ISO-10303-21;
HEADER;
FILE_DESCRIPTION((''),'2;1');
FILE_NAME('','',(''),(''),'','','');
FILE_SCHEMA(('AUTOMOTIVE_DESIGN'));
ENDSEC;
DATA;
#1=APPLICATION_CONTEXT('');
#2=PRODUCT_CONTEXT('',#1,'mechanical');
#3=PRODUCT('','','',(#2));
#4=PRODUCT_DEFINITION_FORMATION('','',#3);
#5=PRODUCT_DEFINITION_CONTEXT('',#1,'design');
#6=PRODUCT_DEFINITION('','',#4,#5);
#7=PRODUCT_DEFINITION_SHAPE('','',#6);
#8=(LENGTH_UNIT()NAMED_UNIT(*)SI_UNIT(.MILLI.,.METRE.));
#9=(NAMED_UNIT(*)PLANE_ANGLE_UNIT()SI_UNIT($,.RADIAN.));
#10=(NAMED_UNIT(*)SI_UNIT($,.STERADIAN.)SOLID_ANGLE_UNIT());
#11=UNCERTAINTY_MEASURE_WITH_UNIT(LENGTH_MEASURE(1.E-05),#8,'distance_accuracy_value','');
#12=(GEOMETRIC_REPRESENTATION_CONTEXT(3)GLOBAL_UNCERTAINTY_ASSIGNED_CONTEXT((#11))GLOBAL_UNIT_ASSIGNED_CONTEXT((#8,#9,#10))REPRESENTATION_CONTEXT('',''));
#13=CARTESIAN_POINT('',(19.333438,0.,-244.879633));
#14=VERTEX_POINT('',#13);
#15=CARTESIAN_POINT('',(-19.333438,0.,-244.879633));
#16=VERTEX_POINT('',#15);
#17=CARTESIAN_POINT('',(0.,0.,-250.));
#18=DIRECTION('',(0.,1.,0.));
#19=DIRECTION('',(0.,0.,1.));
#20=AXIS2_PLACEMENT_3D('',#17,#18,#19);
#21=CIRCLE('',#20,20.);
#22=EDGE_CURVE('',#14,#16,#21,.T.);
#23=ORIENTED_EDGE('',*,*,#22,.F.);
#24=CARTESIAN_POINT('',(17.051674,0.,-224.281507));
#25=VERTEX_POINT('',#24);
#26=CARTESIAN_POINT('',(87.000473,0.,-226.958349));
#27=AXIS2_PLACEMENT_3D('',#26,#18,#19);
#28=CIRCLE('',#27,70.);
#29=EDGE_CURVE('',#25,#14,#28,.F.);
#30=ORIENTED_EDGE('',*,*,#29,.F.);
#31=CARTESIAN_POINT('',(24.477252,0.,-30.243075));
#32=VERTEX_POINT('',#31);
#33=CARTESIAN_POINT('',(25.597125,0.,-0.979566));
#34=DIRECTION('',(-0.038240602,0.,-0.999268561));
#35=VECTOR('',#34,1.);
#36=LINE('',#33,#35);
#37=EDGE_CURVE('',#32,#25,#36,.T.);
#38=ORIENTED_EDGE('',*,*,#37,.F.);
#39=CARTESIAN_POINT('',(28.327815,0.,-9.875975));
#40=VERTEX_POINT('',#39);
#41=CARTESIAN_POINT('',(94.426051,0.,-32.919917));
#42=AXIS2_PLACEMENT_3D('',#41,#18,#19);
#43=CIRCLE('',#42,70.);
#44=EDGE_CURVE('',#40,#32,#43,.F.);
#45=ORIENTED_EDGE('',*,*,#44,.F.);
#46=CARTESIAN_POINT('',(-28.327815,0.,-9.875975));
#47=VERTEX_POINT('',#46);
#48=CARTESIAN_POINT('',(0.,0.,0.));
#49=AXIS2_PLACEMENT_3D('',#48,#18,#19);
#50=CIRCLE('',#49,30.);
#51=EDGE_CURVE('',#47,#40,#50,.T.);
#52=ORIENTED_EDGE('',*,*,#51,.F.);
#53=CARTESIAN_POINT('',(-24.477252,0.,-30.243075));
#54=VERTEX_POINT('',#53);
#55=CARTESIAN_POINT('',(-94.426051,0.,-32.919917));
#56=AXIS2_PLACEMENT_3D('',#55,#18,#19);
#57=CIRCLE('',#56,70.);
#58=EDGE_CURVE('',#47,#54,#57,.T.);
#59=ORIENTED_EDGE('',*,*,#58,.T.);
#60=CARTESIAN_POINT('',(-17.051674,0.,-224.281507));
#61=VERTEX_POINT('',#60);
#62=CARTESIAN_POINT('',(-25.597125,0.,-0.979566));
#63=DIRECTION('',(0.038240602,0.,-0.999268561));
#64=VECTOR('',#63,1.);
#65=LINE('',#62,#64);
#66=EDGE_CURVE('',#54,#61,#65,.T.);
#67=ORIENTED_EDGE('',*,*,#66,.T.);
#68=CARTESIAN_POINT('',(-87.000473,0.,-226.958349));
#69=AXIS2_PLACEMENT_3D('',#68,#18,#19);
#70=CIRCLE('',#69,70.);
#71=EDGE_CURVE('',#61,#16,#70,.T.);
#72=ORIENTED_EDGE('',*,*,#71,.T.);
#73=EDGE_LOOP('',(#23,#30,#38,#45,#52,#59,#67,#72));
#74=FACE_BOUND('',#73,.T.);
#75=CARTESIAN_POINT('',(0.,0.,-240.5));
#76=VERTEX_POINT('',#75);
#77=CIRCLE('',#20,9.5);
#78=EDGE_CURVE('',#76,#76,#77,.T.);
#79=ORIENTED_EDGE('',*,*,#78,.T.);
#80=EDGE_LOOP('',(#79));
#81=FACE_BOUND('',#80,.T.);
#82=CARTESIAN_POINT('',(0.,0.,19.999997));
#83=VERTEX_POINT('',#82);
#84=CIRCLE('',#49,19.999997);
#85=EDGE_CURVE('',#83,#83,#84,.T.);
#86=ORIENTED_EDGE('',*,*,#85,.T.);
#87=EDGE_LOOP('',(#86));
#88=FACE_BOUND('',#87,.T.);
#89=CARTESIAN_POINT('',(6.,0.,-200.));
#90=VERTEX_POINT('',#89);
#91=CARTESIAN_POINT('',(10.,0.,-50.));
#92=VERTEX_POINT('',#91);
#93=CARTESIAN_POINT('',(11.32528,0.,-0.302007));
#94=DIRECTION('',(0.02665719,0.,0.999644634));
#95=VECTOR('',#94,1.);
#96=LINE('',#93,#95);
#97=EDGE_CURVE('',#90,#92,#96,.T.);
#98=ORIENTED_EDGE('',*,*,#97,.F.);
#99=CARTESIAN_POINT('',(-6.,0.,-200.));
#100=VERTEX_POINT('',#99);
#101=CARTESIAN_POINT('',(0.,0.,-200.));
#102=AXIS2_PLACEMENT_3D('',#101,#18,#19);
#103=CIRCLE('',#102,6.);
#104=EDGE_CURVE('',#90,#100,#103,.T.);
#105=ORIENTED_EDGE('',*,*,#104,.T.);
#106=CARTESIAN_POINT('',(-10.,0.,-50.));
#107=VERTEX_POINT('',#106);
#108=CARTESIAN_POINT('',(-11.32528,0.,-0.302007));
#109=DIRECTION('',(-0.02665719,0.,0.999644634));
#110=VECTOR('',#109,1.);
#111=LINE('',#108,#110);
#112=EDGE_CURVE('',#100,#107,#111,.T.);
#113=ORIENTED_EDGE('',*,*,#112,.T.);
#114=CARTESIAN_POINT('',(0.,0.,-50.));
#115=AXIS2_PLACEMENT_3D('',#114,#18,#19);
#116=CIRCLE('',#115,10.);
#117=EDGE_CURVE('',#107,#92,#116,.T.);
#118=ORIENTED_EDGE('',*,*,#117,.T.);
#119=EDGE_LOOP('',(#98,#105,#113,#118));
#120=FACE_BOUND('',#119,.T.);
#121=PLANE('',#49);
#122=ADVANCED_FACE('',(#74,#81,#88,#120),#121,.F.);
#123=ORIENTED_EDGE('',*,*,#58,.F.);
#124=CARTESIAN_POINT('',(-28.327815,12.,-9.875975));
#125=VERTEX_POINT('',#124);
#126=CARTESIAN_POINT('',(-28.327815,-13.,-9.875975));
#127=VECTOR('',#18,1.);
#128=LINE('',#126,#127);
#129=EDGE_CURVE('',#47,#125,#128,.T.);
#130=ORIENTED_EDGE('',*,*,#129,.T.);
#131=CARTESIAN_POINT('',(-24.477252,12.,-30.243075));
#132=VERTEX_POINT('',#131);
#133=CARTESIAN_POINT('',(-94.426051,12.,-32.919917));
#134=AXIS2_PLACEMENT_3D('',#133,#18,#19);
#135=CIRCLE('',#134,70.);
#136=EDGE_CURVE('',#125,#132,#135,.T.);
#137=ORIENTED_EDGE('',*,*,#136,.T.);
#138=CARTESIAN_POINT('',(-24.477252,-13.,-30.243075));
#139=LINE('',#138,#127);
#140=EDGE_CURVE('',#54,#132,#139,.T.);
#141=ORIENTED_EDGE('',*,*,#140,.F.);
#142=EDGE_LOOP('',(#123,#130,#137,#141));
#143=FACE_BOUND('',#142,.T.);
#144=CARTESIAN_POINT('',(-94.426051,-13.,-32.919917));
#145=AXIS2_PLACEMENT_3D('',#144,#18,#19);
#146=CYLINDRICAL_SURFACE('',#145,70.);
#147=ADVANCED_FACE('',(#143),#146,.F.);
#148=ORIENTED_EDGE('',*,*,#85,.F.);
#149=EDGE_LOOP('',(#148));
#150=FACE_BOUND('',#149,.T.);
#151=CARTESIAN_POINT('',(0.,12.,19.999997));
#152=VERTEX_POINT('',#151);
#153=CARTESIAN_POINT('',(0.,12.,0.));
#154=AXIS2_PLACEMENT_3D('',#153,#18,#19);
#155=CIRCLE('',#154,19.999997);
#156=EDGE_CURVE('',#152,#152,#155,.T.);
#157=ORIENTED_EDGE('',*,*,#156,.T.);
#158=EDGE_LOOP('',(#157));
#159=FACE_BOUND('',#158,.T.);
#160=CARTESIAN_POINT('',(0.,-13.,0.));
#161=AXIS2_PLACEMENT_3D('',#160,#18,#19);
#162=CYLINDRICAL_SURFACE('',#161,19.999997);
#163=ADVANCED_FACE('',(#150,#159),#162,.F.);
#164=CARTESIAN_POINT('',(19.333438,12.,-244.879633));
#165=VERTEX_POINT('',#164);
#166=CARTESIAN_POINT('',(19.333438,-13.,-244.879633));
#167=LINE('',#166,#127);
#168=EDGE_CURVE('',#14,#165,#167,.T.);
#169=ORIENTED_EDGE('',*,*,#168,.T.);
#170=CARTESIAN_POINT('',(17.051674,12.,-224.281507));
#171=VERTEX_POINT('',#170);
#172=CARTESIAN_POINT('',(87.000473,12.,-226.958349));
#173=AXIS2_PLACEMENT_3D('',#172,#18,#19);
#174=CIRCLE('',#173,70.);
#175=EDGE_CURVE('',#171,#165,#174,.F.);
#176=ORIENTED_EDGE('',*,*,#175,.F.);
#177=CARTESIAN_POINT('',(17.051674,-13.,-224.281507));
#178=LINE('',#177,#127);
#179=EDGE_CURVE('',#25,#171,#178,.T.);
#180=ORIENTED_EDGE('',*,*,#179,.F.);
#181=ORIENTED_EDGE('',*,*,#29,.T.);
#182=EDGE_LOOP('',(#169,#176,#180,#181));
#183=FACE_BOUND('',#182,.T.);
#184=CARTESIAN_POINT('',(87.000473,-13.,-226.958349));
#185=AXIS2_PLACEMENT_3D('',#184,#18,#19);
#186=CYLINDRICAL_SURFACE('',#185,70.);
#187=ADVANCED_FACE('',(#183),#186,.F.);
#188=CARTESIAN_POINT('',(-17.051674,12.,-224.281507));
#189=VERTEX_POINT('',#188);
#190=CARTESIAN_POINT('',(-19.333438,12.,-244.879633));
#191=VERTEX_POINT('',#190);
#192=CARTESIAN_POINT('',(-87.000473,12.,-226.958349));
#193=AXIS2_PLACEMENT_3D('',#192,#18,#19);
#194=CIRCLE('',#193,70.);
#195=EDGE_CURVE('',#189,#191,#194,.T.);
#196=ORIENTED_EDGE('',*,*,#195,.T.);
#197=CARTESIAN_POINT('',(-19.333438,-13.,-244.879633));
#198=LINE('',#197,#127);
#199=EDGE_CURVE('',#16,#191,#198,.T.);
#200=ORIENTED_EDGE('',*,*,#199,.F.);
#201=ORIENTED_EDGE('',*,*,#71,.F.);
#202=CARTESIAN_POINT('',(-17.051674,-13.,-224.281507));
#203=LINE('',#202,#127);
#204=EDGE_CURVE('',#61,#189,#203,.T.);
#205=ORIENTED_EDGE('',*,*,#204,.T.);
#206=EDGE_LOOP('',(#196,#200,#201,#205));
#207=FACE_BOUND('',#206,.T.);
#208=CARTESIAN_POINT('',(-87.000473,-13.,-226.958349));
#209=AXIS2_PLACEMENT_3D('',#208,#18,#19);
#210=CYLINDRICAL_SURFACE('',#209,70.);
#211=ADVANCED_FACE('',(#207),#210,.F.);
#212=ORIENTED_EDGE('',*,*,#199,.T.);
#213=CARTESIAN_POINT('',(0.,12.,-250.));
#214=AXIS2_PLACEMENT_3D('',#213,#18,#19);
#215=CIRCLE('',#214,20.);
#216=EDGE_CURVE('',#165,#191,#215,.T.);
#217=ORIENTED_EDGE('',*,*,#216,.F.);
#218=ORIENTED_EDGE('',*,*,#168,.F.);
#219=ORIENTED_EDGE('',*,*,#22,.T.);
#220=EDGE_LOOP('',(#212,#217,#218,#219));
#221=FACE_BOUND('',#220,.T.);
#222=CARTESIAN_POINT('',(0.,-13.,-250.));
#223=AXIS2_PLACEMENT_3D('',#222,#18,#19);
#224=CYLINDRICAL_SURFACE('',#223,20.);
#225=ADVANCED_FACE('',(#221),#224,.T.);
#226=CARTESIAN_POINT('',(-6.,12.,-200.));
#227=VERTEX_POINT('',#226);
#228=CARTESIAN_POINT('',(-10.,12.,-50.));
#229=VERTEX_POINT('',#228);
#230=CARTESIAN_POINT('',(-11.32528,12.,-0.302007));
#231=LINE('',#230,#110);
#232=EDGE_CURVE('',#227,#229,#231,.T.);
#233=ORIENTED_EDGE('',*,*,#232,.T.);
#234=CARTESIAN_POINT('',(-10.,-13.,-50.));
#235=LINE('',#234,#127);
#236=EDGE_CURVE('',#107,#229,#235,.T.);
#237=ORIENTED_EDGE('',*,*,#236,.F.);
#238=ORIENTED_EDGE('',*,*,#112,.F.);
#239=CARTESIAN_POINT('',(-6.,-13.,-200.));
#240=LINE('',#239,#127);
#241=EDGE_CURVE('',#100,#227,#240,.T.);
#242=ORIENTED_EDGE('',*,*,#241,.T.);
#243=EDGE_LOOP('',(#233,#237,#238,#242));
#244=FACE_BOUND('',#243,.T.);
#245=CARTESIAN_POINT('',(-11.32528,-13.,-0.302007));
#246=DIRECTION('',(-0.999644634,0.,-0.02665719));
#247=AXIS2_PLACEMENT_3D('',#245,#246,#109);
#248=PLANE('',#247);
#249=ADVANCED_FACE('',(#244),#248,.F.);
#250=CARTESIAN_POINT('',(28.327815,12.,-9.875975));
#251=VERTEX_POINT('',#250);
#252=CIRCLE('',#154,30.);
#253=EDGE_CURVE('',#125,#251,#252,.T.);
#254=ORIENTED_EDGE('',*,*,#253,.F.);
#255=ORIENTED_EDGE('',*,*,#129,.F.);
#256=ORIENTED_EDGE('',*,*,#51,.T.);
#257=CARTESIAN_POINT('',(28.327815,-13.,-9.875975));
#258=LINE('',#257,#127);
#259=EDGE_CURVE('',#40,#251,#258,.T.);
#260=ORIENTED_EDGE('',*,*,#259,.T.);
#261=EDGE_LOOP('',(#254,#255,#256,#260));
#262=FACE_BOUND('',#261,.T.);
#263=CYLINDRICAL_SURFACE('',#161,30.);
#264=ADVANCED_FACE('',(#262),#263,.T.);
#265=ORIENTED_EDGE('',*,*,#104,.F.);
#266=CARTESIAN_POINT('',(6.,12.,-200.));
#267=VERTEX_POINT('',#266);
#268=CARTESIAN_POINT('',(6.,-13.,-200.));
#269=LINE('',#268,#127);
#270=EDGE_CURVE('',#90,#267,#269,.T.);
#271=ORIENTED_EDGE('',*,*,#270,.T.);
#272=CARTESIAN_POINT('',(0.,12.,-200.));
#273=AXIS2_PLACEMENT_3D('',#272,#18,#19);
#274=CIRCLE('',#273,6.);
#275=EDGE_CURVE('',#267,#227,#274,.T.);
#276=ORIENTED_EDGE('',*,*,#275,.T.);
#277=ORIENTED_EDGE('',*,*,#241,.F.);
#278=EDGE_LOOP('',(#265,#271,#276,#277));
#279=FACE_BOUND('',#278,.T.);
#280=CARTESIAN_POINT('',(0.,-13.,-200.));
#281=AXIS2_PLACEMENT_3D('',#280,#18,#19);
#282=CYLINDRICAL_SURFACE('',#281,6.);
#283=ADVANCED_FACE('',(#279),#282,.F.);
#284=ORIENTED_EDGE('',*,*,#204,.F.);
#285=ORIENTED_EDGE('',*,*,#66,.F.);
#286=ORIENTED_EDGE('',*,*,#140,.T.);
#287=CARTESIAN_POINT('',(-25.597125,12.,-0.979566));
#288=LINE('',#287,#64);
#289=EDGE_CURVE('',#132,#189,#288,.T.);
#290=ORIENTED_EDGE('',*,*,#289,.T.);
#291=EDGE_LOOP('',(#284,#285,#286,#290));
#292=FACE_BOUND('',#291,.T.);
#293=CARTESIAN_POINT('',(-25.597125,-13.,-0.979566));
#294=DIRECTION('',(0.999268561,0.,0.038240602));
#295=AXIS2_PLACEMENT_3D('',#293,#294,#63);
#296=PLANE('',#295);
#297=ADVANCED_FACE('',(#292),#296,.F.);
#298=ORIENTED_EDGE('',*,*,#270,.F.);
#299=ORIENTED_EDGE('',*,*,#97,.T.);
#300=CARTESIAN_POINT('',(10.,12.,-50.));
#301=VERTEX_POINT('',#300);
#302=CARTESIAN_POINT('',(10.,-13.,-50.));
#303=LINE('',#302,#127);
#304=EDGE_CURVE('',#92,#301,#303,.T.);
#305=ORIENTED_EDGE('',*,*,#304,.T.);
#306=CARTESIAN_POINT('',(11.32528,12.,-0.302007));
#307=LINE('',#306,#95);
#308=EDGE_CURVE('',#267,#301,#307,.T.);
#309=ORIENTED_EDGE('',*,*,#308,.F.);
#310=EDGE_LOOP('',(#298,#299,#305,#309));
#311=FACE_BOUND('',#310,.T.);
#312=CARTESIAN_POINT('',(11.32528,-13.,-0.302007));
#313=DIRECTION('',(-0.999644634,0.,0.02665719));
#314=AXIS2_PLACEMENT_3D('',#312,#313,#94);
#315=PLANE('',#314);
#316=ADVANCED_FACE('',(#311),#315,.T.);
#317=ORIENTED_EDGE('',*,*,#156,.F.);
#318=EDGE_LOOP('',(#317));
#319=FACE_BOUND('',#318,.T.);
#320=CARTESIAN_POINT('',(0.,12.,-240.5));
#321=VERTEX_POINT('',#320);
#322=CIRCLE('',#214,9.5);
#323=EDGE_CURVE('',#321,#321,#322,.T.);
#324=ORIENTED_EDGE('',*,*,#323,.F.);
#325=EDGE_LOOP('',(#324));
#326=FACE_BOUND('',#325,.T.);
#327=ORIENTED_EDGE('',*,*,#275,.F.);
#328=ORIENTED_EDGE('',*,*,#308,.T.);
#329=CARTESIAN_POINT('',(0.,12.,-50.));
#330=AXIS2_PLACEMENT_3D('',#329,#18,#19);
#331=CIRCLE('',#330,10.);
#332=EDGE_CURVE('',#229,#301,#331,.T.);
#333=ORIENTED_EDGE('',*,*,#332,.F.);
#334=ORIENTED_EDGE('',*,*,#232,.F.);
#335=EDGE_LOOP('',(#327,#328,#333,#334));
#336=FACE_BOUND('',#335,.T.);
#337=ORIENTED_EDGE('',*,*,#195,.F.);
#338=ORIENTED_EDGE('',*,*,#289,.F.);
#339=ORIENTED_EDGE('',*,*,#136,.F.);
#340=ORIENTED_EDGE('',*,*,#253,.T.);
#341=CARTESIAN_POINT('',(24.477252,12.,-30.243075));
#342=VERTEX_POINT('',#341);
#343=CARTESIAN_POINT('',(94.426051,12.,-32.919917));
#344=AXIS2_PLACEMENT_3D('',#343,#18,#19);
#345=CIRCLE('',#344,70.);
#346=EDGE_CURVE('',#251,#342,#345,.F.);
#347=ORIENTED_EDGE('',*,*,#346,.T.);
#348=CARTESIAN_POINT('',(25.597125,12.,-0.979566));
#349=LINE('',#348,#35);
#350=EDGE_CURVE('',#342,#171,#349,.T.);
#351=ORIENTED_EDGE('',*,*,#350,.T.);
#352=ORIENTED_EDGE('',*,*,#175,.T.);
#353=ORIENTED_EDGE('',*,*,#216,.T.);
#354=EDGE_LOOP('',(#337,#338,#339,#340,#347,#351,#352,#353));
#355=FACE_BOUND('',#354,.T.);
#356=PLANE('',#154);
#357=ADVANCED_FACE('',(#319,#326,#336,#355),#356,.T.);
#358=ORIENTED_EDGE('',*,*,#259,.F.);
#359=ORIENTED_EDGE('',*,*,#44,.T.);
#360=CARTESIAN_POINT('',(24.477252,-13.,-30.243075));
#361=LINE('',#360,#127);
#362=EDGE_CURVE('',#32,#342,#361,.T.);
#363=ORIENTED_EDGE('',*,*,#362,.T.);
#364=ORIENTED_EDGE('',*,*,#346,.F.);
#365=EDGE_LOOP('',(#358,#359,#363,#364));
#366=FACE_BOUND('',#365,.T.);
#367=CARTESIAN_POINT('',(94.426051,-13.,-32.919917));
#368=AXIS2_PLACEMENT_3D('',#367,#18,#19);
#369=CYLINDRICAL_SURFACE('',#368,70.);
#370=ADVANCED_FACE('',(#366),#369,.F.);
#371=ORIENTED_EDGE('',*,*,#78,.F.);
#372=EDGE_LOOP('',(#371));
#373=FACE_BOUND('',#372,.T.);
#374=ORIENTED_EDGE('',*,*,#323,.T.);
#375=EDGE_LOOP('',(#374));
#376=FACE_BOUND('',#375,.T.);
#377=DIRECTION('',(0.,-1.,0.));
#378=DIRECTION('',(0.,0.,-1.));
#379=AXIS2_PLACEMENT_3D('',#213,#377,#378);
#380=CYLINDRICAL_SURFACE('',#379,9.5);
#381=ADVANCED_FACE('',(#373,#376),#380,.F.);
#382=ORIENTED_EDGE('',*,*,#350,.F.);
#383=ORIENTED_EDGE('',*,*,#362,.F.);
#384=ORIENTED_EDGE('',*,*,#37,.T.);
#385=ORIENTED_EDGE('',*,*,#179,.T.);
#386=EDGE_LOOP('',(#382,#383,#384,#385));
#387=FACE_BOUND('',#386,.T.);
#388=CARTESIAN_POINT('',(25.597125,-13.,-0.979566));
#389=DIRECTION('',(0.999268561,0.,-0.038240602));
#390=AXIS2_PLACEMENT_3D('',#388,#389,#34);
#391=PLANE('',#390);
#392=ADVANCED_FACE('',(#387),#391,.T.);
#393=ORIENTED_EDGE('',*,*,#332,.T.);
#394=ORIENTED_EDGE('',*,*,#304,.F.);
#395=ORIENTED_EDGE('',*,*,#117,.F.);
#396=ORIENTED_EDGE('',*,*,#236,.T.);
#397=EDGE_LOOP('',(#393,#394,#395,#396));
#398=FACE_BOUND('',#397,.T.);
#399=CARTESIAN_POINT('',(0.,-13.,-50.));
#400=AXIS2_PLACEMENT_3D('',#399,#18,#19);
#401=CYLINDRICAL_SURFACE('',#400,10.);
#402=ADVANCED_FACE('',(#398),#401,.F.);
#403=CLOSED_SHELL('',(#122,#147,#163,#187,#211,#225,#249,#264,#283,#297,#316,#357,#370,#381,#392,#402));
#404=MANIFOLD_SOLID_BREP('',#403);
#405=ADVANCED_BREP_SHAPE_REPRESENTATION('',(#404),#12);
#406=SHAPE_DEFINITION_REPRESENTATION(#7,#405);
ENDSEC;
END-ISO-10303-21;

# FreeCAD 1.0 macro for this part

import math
import FreeCAD as App
import Part
import Sketcher
from FreeCAD import Vector
Q = App.Units.Quantity


def edges_at(feature, points):
    """Names of the edges that pass closest to the given points."""
    edges = feature.Shape.Edges
    near = lambda p: min(range(len(edges)), key=lambda i: edges[i].distToShape(Part.Vertex(*p))[0])
    return sorted({f"Edge{near(p) + 1}" for p in points})

doc = App.newDocument("Part")
body = doc.addObject("PartDesign::Body", "Body")

sketch1 = body.newObject("Sketcher::SketchObject", "Sketch")
sketch1.AttachmentSupport = (doc.getObject("XZ_Plane"), [""])
sketch1.MapMode = "FlatFace"
sketch1.addGeometry(Part.LineSegment(Vector(-25, -249, 0), Vector(-18, 1, 0)), False)
sketch1.addGeometry(Part.ArcOfCircle(Part.Circle(Vector(0, 0, 0), Vector(0, 0, 1), 18), math.radians(2), math.radians(178)), False)
sketch1.addGeometry(Part.LineSegment(Vector(18, 1, 0), Vector(25, -249, 0)), False)
sketch1.addGeometry(Part.ArcOfCircle(Part.Circle(Vector(0, -250, 0), Vector(0, 0, 1), 25), math.radians(178), math.radians(362)), False)
sketch1.addGeometry(Part.Circle(Vector(0, 0, 0), Vector(0, 0, 1), 5), False)
sketch1.addGeometry(Part.LineSegment(Vector(16, -141, 0), Vector(-12, -220, 0)), False)
sketch1.addGeometry(Part.LineSegment(Vector(-12, -220, 0), Vector(18, -231, 0)), False)
sketch1.addGeometry(Part.LineSegment(Vector(18, -231, 0), Vector(16, -141, 0)), False)
sketch1.addGeometry(Part.LineSegment(Vector(-16, -158, 0), Vector(-18, -204, 0)), False)
sketch1.addGeometry(Part.LineSegment(Vector(-18, -204, 0), Vector(11, -137, 0)), False)
sketch1.addGeometry(Part.LineSegment(Vector(11, -137, 0), Vector(-16, -158, 0)), False)
sketch1.addGeometry(Part.Circle(Vector(0, -250, 0), Vector(0, 0, 1), 10), False)
sketch1.addConstraint(Sketcher.Constraint("Tangent", 0, 2, 1, 2))
sketch1.addConstraint(Sketcher.Constraint("Tangent", 1, 1, 2, 1))
sketch1.addConstraint(Sketcher.Constraint("Tangent", 2, 2, 3, 2))
sketch1.addConstraint(Sketcher.Constraint("Tangent", 3, 1, 0, 1))
sketch1.addConstraint(Sketcher.Constraint("Coincident", 5, 2, 6, 1))
sketch1.addConstraint(Sketcher.Constraint("Coincident", 6, 2, 7, 1))
sketch1.addConstraint(Sketcher.Constraint("Coincident", 7, 2, 5, 1))
sketch1.addConstraint(Sketcher.Constraint("Coincident", 8, 2, 9, 1))
sketch1.addConstraint(Sketcher.Constraint("Coincident", 9, 2, 10, 1))
sketch1.addConstraint(Sketcher.Constraint("Coincident", 10, 2, 8, 1))
sketch1.addConstraint(Sketcher.Constraint("Coincident", 1, 3, -1, 1))
sketch1.addConstraint(Sketcher.Constraint("Coincident", 4, 3, -1, 1))
sketch1.addConstraint(Sketcher.Constraint("Coincident", 11, 3, 3, 3))
sketch1.addConstraint(Sketcher.Constraint("PointOnObject", 3, 3, -2))
sketch1.addConstraint(Sketcher.Constraint("Parallel", 2, 7))
sketch1.addConstraint(Sketcher.Constraint("Parallel", 0, 8))
sketch1.addConstraint(Sketcher.Constraint("Diameter", 11, Q("19 mm")))
sketch1.addConstraint(Sketcher.Constraint("Radius", 1, Q("18 mm")))
sketch1.addConstraint(Sketcher.Constraint("Radius", 3, Q("25 mm")))
sketch1.addConstraint(Sketcher.Constraint("Diameter", 4, Q("10.1 mm")))
sketch1.addConstraint(Sketcher.Constraint("DistanceY", 3, 3, -1, 1, Q("250 mm")))
sketch1.addConstraint(Sketcher.Constraint("DistanceX", 5, 2, -1, 1, Q("12 mm")))
sketch1.addConstraint(Sketcher.Constraint("DistanceY", 6, 2, -1, 1, Q("231 mm")))
sketch1.addConstraint(Sketcher.Constraint("DistanceY", 7, 2, -1, 1, Q("141 mm")))
sketch1.addConstraint(Sketcher.Constraint("DistanceY", 5, 2, 8, 2, Q("16 mm")))
sketch1.addConstraint(Sketcher.Constraint("DistanceY", 8, 2, 10, 2, Q("45 mm")))
sketch1.addConstraint(Sketcher.Constraint("DistanceY", 5, 2, -1, 1, Q("219.5 mm")))
sketch1.addConstraint(Sketcher.Constraint("Distance", 5, Q("83.328809 mm")))
sketch1.addConstraint(Sketcher.Constraint("Distance", 10, Q("34.778461 mm")))
sketch1.addConstraint(Sketcher.Constraint("DistanceX", 8, 2, -1, 1, Q("17.704942 mm")))
sketch1.addConstraint(Sketcher.Constraint("DistanceX", -1, 1, 9, 2, Q("11.028871 mm")))
pad1 = body.newObject("PartDesign::Pad", "Pad")
pad1.Profile = sketch1
pad1.Length = 12
pad1.Reversed = True
doc.recompute()

fillet = body.newObject("PartDesign::Fillet", "Fillet")
fillet.Base = (pad1, edges_at(pad1, [
    (-16.444, 6, -158.5),
    (11.029, 6, -137.175),
    (-17.705, 6, -203.5),
    (18.475, 6, -231),
    (-12, 6, -219.5),
    (15.954, 6, -141),
]))
fillet.Radius = 3

sketch2 = body.newObject("Sketcher::SketchObject", "Sketch001")
sketch2.AttachmentSupport = (doc.getObject("XZ_Plane"), [""])
sketch2.MapMode = "FlatFace"
sketch2.AttachmentOffset = App.Placement(Vector(0, 0, -12), App.Rotation())
sketch2.addGeometry(Part.Circle(Vector(15, -15, 0), Vector(0, 0, 1), 2), False)
sketch2.addGeometry(Part.Circle(Vector(-15, -15, 0), Vector(0, 0, 1), 2), False)
sketch2.addGeometry(Part.Circle(Vector(-15, 15, 0), Vector(0, 0, 1), 2), False)
sketch2.addGeometry(Part.Circle(Vector(15, 15, 0), Vector(0, 0, 1), 2), False)
sketch2.addConstraint(Sketcher.Constraint("Equal", 0, 1))
sketch2.addConstraint(Sketcher.Constraint("Equal", 1, 2))
sketch2.addConstraint(Sketcher.Constraint("Equal", 2, 3))
sketch2.addConstraint(Sketcher.Constraint("Symmetric", 0, 3, 2, 3, -1, 1))
sketch2.addConstraint(Sketcher.Constraint("Symmetric", 1, 3, 3, 3, -1, 1))
sketch2.addConstraint(Sketcher.Constraint("Symmetric", 0, 3, 1, 3, -2))
sketch2.addConstraint(Sketcher.Constraint("Diameter", 0, Q("4.1 mm")))
sketch2.addConstraint(Sketcher.Constraint("DistanceX", -1, 1, 0, 3, Q("15 mm")))
sketch2.addConstraint(Sketcher.Constraint("DistanceY", 0, 3, -1, 1, Q("15 mm")))
pocket1 = body.newObject("PartDesign::Pocket", "Pocket")
pocket1.Profile = sketch2
pocket1.Type = "ThroughAll"
pocket1.Reversed = True

sketch3 = body.newObject("Sketcher::SketchObject", "Sketch002")
sketch3.AttachmentSupport = (doc.getObject("XZ_Plane"), [""])
sketch3.MapMode = "FlatFace"
sketch3.AttachmentOffset = App.Placement(Vector(0, 0, -12), App.Rotation())
sketch3.addGeometry(Part.LineSegment(Vector(21, -233, 0), Vector(-18, -235, 0)), False)
sketch3.addGeometry(Part.LineSegment(Vector(-18, -235, 0), Vector(-22, -157, 0)), False)
sketch3.addGeometry(Part.LineSegment(Vector(-22, -157, 0), Vector(16, -132, 0)), False)
sketch3.addGeometry(Part.LineSegment(Vector(16, -132, 0), Vector(21, -233, 0)), False)
sketch3.addConstraint(Sketcher.Constraint("Coincident", 0, 2, 1, 1))
sketch3.addConstraint(Sketcher.Constraint("Coincident", 1, 2, 2, 1))
sketch3.addConstraint(Sketcher.Constraint("Coincident", 2, 2, 3, 1))
sketch3.addConstraint(Sketcher.Constraint("Coincident", 3, 2, 0, 1))
sketch3.addConstraint(Sketcher.Constraint("Perpendicular", 0, 1))
sketch3.addConstraint(Sketcher.Constraint("Parallel", 1, 3))
sketch3.addConstraint(Sketcher.Constraint("DistanceX", -1, 1, 3, 2, Q("21.367198 mm")))
sketch3.addConstraint(Sketcher.Constraint("Distance", 2, Q("45.314319 mm")))
sketch3.addConstraint(Sketcher.Constraint("DistanceX", 0, 2, -1, 1, Q("17.958822 mm")))
sketch3.addConstraint(Sketcher.Constraint("DistanceX", 1, 2, 2, 2, Q("38.03593 mm")))
sketch3.addConstraint(Sketcher.Constraint("Distance", 1, Q("78.797344 mm")))
sketch3.addConstraint(Sketcher.Constraint("DistanceY", 0, 2, -1, 1, Q("235.186563 mm")))
pad2 = body.newObject("PartDesign::Pad", "Pad001")
pad2.Profile = sketch3
pad2.Length = 12

sketch4 = body.newObject("Sketcher::SketchObject", "Sketch003")
sketch4.AttachmentSupport = (doc.getObject("XZ_Plane"), [""])
sketch4.MapMode = "FlatFace"
sketch4.AttachmentOffset = App.Placement(Vector(0, 0, -12), App.Rotation())
sketch4.addGeometry(Part.Circle(Vector(0, 0, 0), Vector(0, 0, 1), 13), False)
sketch4.addConstraint(Sketcher.Constraint("Coincident", 0, 3, -1, 1))
sketch4.addConstraint(Sketcher.Constraint("Diameter", 0, Q("26 mm")))
pocket2 = body.newObject("PartDesign::Pocket", "Pocket001")
pocket2.Profile = sketch4
pocket2.Type = "ThroughAll"
pocket2.Reversed = True

sketch5 = body.newObject("Sketcher::SketchObject", "Sketch004")
sketch5.AttachmentSupport = (doc.getObject("XZ_Plane"), [""])
sketch5.MapMode = "FlatFace"
sketch5.AttachmentOffset = App.Placement(Vector(0, 0, -12), App.Rotation())
sketch5.addGeometry(Part.Circle(Vector(0, 0, 0), Vector(0, 0, 1), 25), False)
sketch5.addGeometry(Part.Circle(Vector(0, 0, 0), Vector(0, 0, 1), 13), False)
sketch5.addConstraint(Sketcher.Constraint("Coincident", 0, 3, -1, 1))
sketch5.addConstraint(Sketcher.Constraint("Coincident", 1, 3, -1, 1))
sketch5.addConstraint(Sketcher.Constraint("Diameter", 0, Q("50 mm")))
sketch5.addConstraint(Sketcher.Constraint("Diameter", 1, Q("26 mm")))
pad3 = body.newObject("PartDesign::Pad", "Pad002")
pad3.Profile = sketch5
pad3.Length = 12

sketch6 = body.newObject("Sketcher::SketchObject", "Sketch005")
sketch6.AttachmentSupport = (doc.getObject("XZ_Plane"), [""])
sketch6.MapMode = "FlatFace"
sketch6.AttachmentOffset = App.Placement(Vector(0, 0, -12), App.Rotation())
sketch6.addGeometry(Part.LineSegment(Vector(-39.7, -4.8, 0), Vector(-40, 0, 0)), False)
sketch6.addGeometry(Part.ArcOfCircle(Part.Circle(Vector(0, 0, 0), Vector(0, 0, 1), 40), math.radians(0), math.radians(180)), False)
sketch6.addGeometry(Part.LineSegment(Vector(40, 0, 0), Vector(39.7, -4.8, 0)), False)
sketch6.addGeometry(Part.LineSegment(Vector(39.7, -4.8, 0), Vector(25, -249.3, 0)), False)
sketch6.addGeometry(Part.LineSegment(Vector(25, -249.3, 0), Vector(19, -35.2, 0)), False)
sketch6.addGeometry(Part.ArcOfCircle(Part.Circle(Vector(0, 0, 0), Vector(0, 0, 1), 40), math.radians(-118), math.radians(-62)), False)
sketch6.addGeometry(Part.LineSegment(Vector(-19, -35.2, 0), Vector(-25, -249.3, 0)), False)
sketch6.addGeometry(Part.LineSegment(Vector(-25, -249.3, 0), Vector(-39.7, -4.8, 0)), False)
sketch6.addGeometry(Part.Circle(Vector(-31.5, 20.4, 0), Vector(0, 0, 1), 1.5), False)
sketch6.addGeometry(Part.Circle(Vector(-11, 35.8, 0), Vector(0, 0, 1), 1.5), False)
sketch6.addGeometry(Part.Circle(Vector(14.6, 34.5, 0), Vector(0, 0, 1), 1.5), False)
sketch6.addGeometry(Part.Circle(Vector(0, 0, 0), Vector(0, 0, 1), 21.5), False)
sketch6.addGeometry(Part.Circle(Vector(33.4, 17.1, 0), Vector(0, 0, 1), 1.5), False)
sketch6.addGeometry(Part.Circle(Vector(-37.2, -4.6, 0), Vector(0, 0, 1), 1.5), False)
sketch6.addGeometry(Part.Circle(Vector(-1.9, -37.5, 0), Vector(0, 0, 1), 1.5), False)
sketch6.addGeometry(Part.Circle(Vector(36.6, -8.4, 0), Vector(0, 0, 1), 1.5), False)
sketch6.addConstraint(Sketcher.Constraint("Coincident", 0, 2, 1, 2))
sketch6.addConstraint(Sketcher.Constraint("Coincident", 1, 1, 2, 1))
sketch6.addConstraint(Sketcher.Constraint("Coincident", 2, 2, 3, 1))
sketch6.addConstraint(Sketcher.Constraint("Coincident", 3, 2, 4, 1))
sketch6.addConstraint(Sketcher.Constraint("Coincident", 4, 2, 5, 2))
sketch6.addConstraint(Sketcher.Constraint("Coincident", 5, 1, 6, 1))
sketch6.addConstraint(Sketcher.Constraint("Coincident", 6, 2, 7, 1))
sketch6.addConstraint(Sketcher.Constraint("Coincident", 7, 2, 0, 1))
sketch6.addConstraint(Sketcher.Constraint("Coincident", 1, 3, -1, 1))
sketch6.addConstraint(Sketcher.Constraint("Coincident", 5, 3, -1, 1))
sketch6.addConstraint(Sketcher.Constraint("Coincident", 11, 3, -1, 1))
sketch6.addConstraint(Sketcher.Constraint("Equal", 1, 5))
sketch6.addConstraint(Sketcher.Constraint("Equal", 8, 9))
sketch6.addConstraint(Sketcher.Constraint("Equal", 9, 10))
sketch6.addConstraint(Sketcher.Constraint("Equal", 10, 12))
sketch6.addConstraint(Sketcher.Constraint("Equal", 12, 13))
sketch6.addConstraint(Sketcher.Constraint("Equal", 13, 14))
sketch6.addConstraint(Sketcher.Constraint("Equal", 14, 15))
sketch6.addConstraint(Sketcher.Constraint("Symmetric", 3, 2, 6, 2, -2))
sketch6.addConstraint(Sketcher.Constraint("Symmetric", 2, 2, 7, 2, -2))
sketch6.addConstraint(Sketcher.Constraint("PointOnObject", 0, 2, -1))
sketch6.addConstraint(Sketcher.Constraint("PointOnObject", 1, 1, -1))
sketch6.addConstraint(Sketcher.Constraint("Parallel", 2, 3))
sketch6.addConstraint(Sketcher.Constraint("Horizontal", 4, 2, 5, 1))
sketch6.addConstraint(Sketcher.Constraint("Diameter", 8, Q("3 mm")))
sketch6.addConstraint(Sketcher.Constraint("Diameter", 11, Q("43 mm")))
sketch6.addConstraint(Sketcher.Constraint("Radius", 1, Q("40 mm")))
sketch6.addConstraint(Sketcher.Constraint("DistanceY", 3, 2, -1, 1, Q("249.3 mm")))
sketch6.addConstraint(Sketcher.Constraint("DistanceX", 13, 3, -1, 1, Q("37.210701 mm")))
sketch6.addConstraint(Sketcher.Constraint("DistanceX", -1, 1, 3, 2, Q("24.990198 mm")))
sketch6.addConstraint(Sketcher.Constraint("DistanceX", 10, 3, 12, 3, Q("18.7974 mm")))
sketch6.addConstraint(Sketcher.Constraint("DistanceY", 15, 3, 2, 2, Q("3.5589 mm")))
sketch6.addConstraint(Sketcher.Constraint("DistanceX", 12, 3, 2, 2, Q("6.334499 mm")))
sketch6.addConstraint(Sketcher.Constraint("Distance", 3, Q("244.943528 mm")))
sketch6.addConstraint(Sketcher.Constraint("Distance", 4, Q("214.180839 mm")))
sketch6.addConstraint(Sketcher.Constraint("DistanceY", -1, 1, 10, 3, Q("34.54994 mm")))
sketch6.addConstraint(Sketcher.Constraint("DistanceX", 8, 3, 9, 3, Q("20.45341 mm")))
sketch6.addConstraint(Sketcher.Constraint("DistanceY", 13, 3, 8, 3, Q("25.00625 mm")))
sketch6.addConstraint(Sketcher.Constraint("DistanceY", 14, 3, 13, 3, Q("32.803631 mm")))
sketch6.addConstraint(Sketcher.Constraint("DistanceY", 14, 3, 12, 3, Q("54.54818 mm")))
sketch6.addConstraint(Sketcher.Constraint("DistanceX", 12, 3, 15, 3, Q("3.180142 mm")))
sketch6.addConstraint(Sketcher.Constraint("DistanceY", 15, 3, 12, 3, Q("25.453619 mm")))
sketch6.addConstraint(Sketcher.Constraint("DistanceX", 14, 3, 4, 2, Q("20.876279 mm")))
sketch6.addConstraint(Sketcher.Constraint("DistanceX", 8, 3, -1, 1, Q("31.493406 mm")))
sketch6.addConstraint(Sketcher.Constraint("DistanceY", -1, 1, 9, 3, Q("35.838087 mm")))
pad4 = body.newObject("PartDesign::Pad", "Pad003")
pad4.Profile = sketch6
pad4.Length = 12

sketch7 = body.newObject("Sketcher::SketchObject", "Sketch006")
sketch7.AttachmentSupport = (doc.getObject("XZ_Plane"), [""])
sketch7.MapMode = "FlatFace"
sketch7.AttachmentOffset = App.Placement(Vector(0, 0, -12), App.Rotation())
sketch7.addGeometry(Part.ArcOfCircle(Part.Circle(Vector(0, 0, 0), Vector(0, 0, 1), 40), math.radians(0), math.radians(180)), False)
sketch7.addGeometry(Part.LineSegment(Vector(40, 0, 0), Vector(25, -249.3, 0)), False)
sketch7.addGeometry(Part.ArcOfCircle(Part.Circle(Vector(0, -250, 0), Vector(0, 0, 1), 25), math.radians(178), math.radians(362)), False)
sketch7.addGeometry(Part.LineSegment(Vector(-25, -249.3, 0), Vector(-40, 0, 0)), False)
sketch7.addGeometry(Part.Circle(Vector(-31.5, 20.4, 0), Vector(0, 0, 1), 1.5), False)
sketch7.addGeometry(Part.Circle(Vector(-37.2, -4.6, 0), Vector(0, 0, 1), 1.5), False)
sketch7.addGeometry(Part.Circle(Vector(-11, 35.8, 0), Vector(0, 0, 1), 1.5), False)
sketch7.addGeometry(Part.Circle(Vector(14.6, 34.5, 0), Vector(0, 0, 1), 1.5), False)
sketch7.addGeometry(Part.Circle(Vector(33.4, 17.1, 0), Vector(0, 0, 1), 1.5), False)
sketch7.addGeometry(Part.Circle(Vector(36.6, -8.4, 0), Vector(0, 0, 1), 1.5), False)
sketch7.addGeometry(Part.ArcOfCircle(Part.Circle(Vector(0, 0, 0), Vector(0, 0, 1), 30), math.radians(-19), math.radians(199)), False)
sketch7.addGeometry(Part.ArcOfCircle(Part.Circle(Vector(-94.4, -32.9, 0), Vector(0, 0, 1), 70), math.radians(2.19), math.radians(19.22)), False)
sketch7.addGeometry(Part.LineSegment(Vector(-24.5, -30.2, 0), Vector(-17.1, -224.3, 0)), False)
sketch7.addGeometry(Part.ArcOfCircle(Part.Circle(Vector(-87, -227, 0), Vector(0, 0, 1), 70), math.radians(-14.83), math.radians(2.19)), False)
sketch7.addGeometry(Part.ArcOfCircle(Part.Circle(Vector(0, -250, 0), Vector(0, 0, 1), 20), math.radians(165), math.radians(375)), False)
sketch7.addGeometry(Part.ArcOfCircle(Part.Circle(Vector(87, -227, 0), Vector(0, 0, 1), 70), math.radians(177.81), math.radians(194.83)), False)
sketch7.addGeometry(Part.LineSegment(Vector(17.1, -224.3, 0), Vector(24.5, -30.2, 0)), False)
sketch7.addGeometry(Part.ArcOfCircle(Part.Circle(Vector(94.4, -32.9, 0), Vector(0, 0, 1), 70), math.radians(160.78), math.radians(177.81)), False)
sketch7.addGeometry(Part.ArcOfCircle(Part.Circle(Vector(0, -200, 0), Vector(0, 0, 1), 6), math.radians(180), math.radians(360)), False)
sketch7.addGeometry(Part.LineSegment(Vector(-6, -200, 0), Vector(-10, -50, 0)), False)
sketch7.addGeometry(Part.ArcOfCircle(Part.Circle(Vector(0, -50, 0), Vector(0, 0, 1), 10), math.radians(0), math.radians(180)), False)
sketch7.addGeometry(Part.LineSegment(Vector(10, -50, 0), Vector(6, -200, 0)), False)
sketch7.addGeometry(Part.Circle(Vector(0, 0, 0), Vector(0, 0, 1), 20), False)
sketch7.addGeometry(Part.Circle(Vector(0, 0, 0), Vector(0, 0, 1), 13), False)
sketch7.addConstraint(Sketcher.Constraint("Coincident", 0, 1, 1, 1))
sketch7.addConstraint(Sketcher.Constraint("Coincident", 1, 2, 2, 2))
sketch7.addConstraint(Sketcher.Constraint("Coincident", 2, 1, 3, 1))
sketch7.addConstraint(Sketcher.Constraint("Coincident", 3, 2, 0, 2))
sketch7.addConstraint(Sketcher.Constraint("Tangent", 10, 2, 11, 2))
sketch7.addConstraint(Sketcher.Constraint("Tangent", 11, 1, 12, 1))
sketch7.addConstraint(Sketcher.Constraint("Tangent", 12, 2, 13, 2))
sketch7.addConstraint(Sketcher.Constraint("Tangent", 13, 1, 14, 1))
sketch7.addConstraint(Sketcher.Constraint("Tangent", 14, 2, 15, 2))
sketch7.addConstraint(Sketcher.Constraint("Tangent", 15, 1, 16, 1))
sketch7.addConstraint(Sketcher.Constraint("Tangent", 16, 2, 17, 2))
sketch7.addConstraint(Sketcher.Constraint("Tangent", 17, 1, 10, 1))
sketch7.addConstraint(Sketcher.Constraint("Coincident", 18, 1, 19, 1))
sketch7.addConstraint(Sketcher.Constraint("Coincident", 19, 2, 20, 2))
sketch7.addConstraint(Sketcher.Constraint("Coincident", 20, 1, 21, 1))
sketch7.addConstraint(Sketcher.Constraint("Coincident", 21, 2, 18, 2))
sketch7.addConstraint(Sketcher.Constraint("Coincident", 0, 3, -1, 1))
sketch7.addConstraint(Sketcher.Constraint("Coincident", 10, 3, -1, 1))
sketch7.addConstraint(Sketcher.Constraint("Coincident", 22, 3, -1, 1))
sketch7.addConstraint(Sketcher.Constraint("Coincident", 23, 3, -1, 1))
sketch7.addConstraint(Sketcher.Constraint("Coincident", 14, 3, 2, 3))
sketch7.addConstraint(Sketcher.Constraint("Equal", 4, 5))
sketch7.addConstraint(Sketcher.Constraint("Equal", 5, 6))
sketch7.addConstraint(Sketcher.Constraint("Equal", 6, 7))
sketch7.addConstraint(Sketcher.Constraint("Equal", 7, 8))
sketch7.addConstraint(Sketcher.Constraint("Equal", 8, 9))
sketch7.addConstraint(Sketcher.Constraint("Equal", 11, 13))
sketch7.addConstraint(Sketcher.Constraint("Equal", 13, 15))
sketch7.addConstraint(Sketcher.Constraint("Equal", 15, 17))
sketch7.addConstraint(Sketcher.Constraint("Symmetric", 13, 3, 15, 3, -2))
sketch7.addConstraint(Sketcher.Constraint("Symmetric", 19, 2, 20, 1, -2))
sketch7.addConstraint(Sketcher.Constraint("Symmetric", 18, 1, 21, 2, -2))
sketch7.addConstraint(Sketcher.Constraint("PointOnObject", 0, 1, -1))
sketch7.addConstraint(Sketcher.Constraint("PointOnObject", 3, 2, -1))
sketch7.addConstraint(Sketcher.Constraint("Horizontal", 11, 3, 17, 3))
sketch7.addConstraint(Sketcher.Constraint("Horizontal", 1, 2, 2, 1))
sketch7.addConstraint(Sketcher.Constraint("Horizontal", 20, 3, 19, 2))
sketch7.addConstraint(Sketcher.Constraint("Diameter", 4, Q("3 mm")))
sketch7.addConstraint(Sketcher.Constraint("Diameter", 23, Q("26 mm")))
sketch7.addConstraint(Sketcher.Constraint("Radius", 0, Q("40 mm")))
sketch7.addConstraint(Sketcher.Constraint("Radius", 2, Q("25 mm")))
sketch7.addConstraint(Sketcher.Constraint("Radius", 10, Q("30 mm")))
sketch7.addConstraint(Sketcher.Constraint("Radius", 11, Q("70 mm")))
sketch7.addConstraint(Sketcher.Constraint("Radius", 14, Q("20 mm")))
sketch7.addConstraint(Sketcher.Constraint("Radius", 18, Q("6 mm")))
sketch7.addConstraint(Sketcher.Constraint("Radius", 20, Q("10 mm")))
sketch7.addConstraint(Sketcher.Constraint("DistanceY", 2, 3, -1, 1, Q("250 mm")))
sketch7.addConstraint(Sketcher.Constraint("DistanceY", 18, 3, -1, 1, Q("200 mm")))
sketch7.addConstraint(Sketcher.Constraint("DistanceY", 20, 3, -1, 1, Q("50 mm")))
sketch7.addConstraint(Sketcher.Constraint("DistanceY", 18, 1, -1, 1, Q("200 mm")))
sketch7.addConstraint(Sketcher.Constraint("DistanceY", 1, 2, -1, 1, Q("249.3 mm")))
sketch7.addConstraint(Sketcher.Constraint("Diameter", 22, Q("39.999994 mm")))
sketch7.addConstraint(Sketcher.Constraint("DistanceX", 5, 3, -1, 1, Q("37.210701 mm")))
sketch7.addConstraint(Sketcher.Constraint("DistanceX", 7, 3, 8, 3, Q("18.7974 mm")))
sketch7.addConstraint(Sketcher.Constraint("DistanceY", 8, 3, 4, 3, Q("3.261701 mm")))
sketch7.addConstraint(Sketcher.Constraint("DistanceX", 8, 3, 17, 3, Q("61.0495 mm")))
sketch7.addConstraint(Sketcher.Constraint("DistanceY", 11, 1, 10, 2, Q("20.3671 mm")))
sketch7.addConstraint(Sketcher.Constraint("DistanceX", -1, 1, 7, 3, Q("14.57915 mm")))
sketch7.addConstraint(Sketcher.Constraint("DistanceY", -1, 1, 7, 3, Q("34.54994 mm")))
sketch7.addConstraint(Sketcher.Constraint("DistanceY", 5, 3, 4, 3, Q("25.00625 mm")))
sketch7.addConstraint(Sketcher.Constraint("DistanceX", 4, 3, 6, 3, Q("20.45341 mm")))
sketch7.addConstraint(Sketcher.Constraint("DistanceX", 8, 3, 9, 3, Q("3.180142 mm")))
sketch7.addConstraint(Sketcher.Constraint("DistanceY", 9, 3, 8, 3, Q("25.453619 mm")))
sketch7.addConstraint(Sketcher.Constraint("DistanceX", 6, 3, 9, 3, Q("47.596689 mm")))
sketch7.addConstraint(Sketcher.Constraint("DistanceY", 11, 3, 5, 3, Q("28.270861 mm")))
sketch7.addConstraint(Sketcher.Constraint("DistanceY", -1, 1, 6, 3, Q("35.838087 mm")))
pocket3 = body.newObject("PartDesign::Pocket", "Pocket002")
pocket3.Profile = sketch7
pocket3.Length = 25
pocket3.Reversed = True

doc.recompute()
